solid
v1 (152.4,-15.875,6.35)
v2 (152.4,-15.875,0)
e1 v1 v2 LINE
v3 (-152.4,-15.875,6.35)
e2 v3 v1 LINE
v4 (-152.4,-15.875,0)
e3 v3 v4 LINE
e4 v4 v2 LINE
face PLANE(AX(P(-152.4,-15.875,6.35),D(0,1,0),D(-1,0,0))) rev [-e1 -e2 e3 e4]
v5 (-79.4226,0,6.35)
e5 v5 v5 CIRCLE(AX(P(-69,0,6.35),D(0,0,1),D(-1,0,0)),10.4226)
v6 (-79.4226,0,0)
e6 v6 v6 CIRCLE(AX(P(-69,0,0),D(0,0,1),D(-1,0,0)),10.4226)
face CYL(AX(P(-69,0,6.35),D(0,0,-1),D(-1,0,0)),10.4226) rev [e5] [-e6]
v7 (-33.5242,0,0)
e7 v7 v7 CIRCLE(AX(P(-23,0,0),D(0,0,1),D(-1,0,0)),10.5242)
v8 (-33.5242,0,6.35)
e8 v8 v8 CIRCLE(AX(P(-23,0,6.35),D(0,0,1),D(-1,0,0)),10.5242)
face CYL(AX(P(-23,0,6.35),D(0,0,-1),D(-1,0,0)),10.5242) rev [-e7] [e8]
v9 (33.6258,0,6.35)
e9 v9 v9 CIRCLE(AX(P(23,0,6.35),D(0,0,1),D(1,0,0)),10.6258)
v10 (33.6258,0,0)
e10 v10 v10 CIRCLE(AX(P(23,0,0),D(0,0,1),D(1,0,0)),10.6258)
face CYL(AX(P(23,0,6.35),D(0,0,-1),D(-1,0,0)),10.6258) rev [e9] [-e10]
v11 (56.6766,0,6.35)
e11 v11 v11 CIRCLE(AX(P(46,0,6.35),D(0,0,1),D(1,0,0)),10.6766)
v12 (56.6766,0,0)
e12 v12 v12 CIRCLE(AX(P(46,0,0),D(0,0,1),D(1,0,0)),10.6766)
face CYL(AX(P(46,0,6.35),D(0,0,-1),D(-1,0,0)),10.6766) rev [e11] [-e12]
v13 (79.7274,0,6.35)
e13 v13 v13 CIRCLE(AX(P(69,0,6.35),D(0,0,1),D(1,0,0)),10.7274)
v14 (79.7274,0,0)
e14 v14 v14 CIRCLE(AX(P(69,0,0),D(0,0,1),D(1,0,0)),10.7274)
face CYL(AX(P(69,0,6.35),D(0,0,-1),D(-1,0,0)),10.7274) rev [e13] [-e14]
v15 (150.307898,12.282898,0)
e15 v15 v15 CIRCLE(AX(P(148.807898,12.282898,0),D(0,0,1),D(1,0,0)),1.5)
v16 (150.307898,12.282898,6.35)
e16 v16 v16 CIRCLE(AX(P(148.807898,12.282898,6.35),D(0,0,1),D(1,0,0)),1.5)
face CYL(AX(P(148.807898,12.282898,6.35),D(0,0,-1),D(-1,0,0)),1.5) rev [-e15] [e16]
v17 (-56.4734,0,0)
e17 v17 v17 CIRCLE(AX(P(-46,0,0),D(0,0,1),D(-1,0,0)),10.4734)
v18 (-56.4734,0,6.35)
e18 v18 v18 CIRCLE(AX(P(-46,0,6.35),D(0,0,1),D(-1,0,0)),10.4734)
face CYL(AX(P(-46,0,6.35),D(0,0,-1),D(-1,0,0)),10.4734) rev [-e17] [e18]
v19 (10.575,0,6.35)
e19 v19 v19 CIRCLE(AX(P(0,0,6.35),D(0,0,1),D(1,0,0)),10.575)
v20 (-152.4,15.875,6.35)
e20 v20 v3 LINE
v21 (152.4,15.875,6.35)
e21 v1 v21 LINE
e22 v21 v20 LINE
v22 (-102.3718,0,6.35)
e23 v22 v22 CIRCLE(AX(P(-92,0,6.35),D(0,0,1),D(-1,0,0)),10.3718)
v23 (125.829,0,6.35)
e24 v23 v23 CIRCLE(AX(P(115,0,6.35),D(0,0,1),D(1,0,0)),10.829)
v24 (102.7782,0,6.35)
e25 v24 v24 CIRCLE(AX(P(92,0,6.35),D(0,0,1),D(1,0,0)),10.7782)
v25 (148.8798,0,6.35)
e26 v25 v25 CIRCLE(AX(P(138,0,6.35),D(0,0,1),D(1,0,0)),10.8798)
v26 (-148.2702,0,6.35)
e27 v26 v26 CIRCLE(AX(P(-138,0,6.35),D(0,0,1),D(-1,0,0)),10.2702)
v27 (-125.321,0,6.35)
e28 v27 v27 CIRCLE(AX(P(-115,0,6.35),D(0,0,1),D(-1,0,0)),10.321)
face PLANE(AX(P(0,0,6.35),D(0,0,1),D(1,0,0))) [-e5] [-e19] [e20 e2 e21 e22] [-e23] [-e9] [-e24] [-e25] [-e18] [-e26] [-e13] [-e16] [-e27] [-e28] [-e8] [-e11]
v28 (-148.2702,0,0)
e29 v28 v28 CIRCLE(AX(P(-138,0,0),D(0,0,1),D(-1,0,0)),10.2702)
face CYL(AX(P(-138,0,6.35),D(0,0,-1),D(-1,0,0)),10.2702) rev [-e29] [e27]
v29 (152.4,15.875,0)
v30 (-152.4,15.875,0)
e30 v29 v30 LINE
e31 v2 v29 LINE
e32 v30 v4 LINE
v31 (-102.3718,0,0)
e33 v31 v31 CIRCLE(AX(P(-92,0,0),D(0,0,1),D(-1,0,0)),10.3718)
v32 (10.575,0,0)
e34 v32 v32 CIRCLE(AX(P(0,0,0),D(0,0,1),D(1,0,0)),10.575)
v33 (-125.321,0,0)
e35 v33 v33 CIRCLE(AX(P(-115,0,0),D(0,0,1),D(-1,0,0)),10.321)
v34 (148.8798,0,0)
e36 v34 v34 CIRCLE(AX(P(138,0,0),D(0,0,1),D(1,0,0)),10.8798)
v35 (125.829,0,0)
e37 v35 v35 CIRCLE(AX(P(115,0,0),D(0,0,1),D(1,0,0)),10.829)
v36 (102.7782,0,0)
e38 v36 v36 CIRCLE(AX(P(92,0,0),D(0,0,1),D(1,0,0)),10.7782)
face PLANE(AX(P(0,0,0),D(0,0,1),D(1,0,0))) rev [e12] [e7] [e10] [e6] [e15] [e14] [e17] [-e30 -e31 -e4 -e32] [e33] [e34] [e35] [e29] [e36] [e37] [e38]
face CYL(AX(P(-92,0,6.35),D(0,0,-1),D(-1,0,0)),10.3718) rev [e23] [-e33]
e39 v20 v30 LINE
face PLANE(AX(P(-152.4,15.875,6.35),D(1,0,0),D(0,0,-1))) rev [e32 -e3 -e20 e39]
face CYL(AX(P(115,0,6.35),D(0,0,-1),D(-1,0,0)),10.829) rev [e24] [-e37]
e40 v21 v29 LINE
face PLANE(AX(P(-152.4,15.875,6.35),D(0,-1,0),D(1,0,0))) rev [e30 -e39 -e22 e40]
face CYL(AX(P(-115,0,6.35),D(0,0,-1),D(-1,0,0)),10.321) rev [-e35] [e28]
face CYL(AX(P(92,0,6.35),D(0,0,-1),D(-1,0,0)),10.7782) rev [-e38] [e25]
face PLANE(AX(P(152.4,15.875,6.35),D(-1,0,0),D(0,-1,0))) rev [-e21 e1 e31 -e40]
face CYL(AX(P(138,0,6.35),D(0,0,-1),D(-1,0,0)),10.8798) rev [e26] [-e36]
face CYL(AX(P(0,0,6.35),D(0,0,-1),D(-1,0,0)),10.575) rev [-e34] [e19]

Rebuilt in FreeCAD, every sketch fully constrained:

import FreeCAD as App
import Part
import Sketcher
Q = App.Units.Quantity


def add_polygon(sketch, points):
    """Adds a closed chain of lines whose ends are joined by coincident constraints."""
    first, n = sketch.GeometryCount, len(points)
    for a, b in zip(points, points[1:] + points[:1]):
        sketch.addGeometry(Part.LineSegment(App.Vector(*a, 0), App.Vector(*b, 0)), False)
    for i in range(n):
        sketch.addConstraint(Sketcher.Constraint("Coincident", first + i, 2, first + (i + 1) % n, 1))

doc = App.newDocument("Part")
body = doc.addObject("PartDesign::Body", "Body")

# Sketch on XY plane
sketch1 = body.newObject("Sketcher::SketchObject", "Sketch")
sketch1.AttachmentSupport = (doc.getObject("XY_Plane"), [""])
sketch1.MapMode = "FlatFace"
add_polygon(sketch1, [(-152.4, 15.9), (-152.4, -15.9), (152.4, -15.9), (152.4, 15.9)])  # lines 0-3
sketch1.addGeometry(Part.Circle(App.Vector(-138, 0, 0), App.Vector(0, 0, 1), 10.3), False)  # 4
sketch1.addGeometry(Part.Circle(App.Vector(-115, 0, 0), App.Vector(0, 0, 1), 10.3), False)  # 5
sketch1.addGeometry(Part.Circle(App.Vector(-92, 0, 0), App.Vector(0, 0, 1), 10.4), False)  # 6
sketch1.addGeometry(Part.Circle(App.Vector(-69, 0, 0), App.Vector(0, 0, 1), 10.4), False)  # 7
sketch1.addGeometry(Part.Circle(App.Vector(-46, 0, 0), App.Vector(0, 0, 1), 10.5), False)  # 8
sketch1.addGeometry(Part.Circle(App.Vector(-23, 0, 0), App.Vector(0, 0, 1), 10.5), False)  # 9
sketch1.addGeometry(Part.Circle(App.Vector(0, 0, 0), App.Vector(0, 0, 1), 10.6), False)  # 10
sketch1.addGeometry(Part.Circle(App.Vector(23, 0, 0), App.Vector(0, 0, 1), 10.6), False)  # 11
sketch1.addGeometry(Part.Circle(App.Vector(46, 0, 0), App.Vector(0, 0, 1), 10.7), False)  # 12
sketch1.addGeometry(Part.Circle(App.Vector(69, 0, 0), App.Vector(0, 0, 1), 10.7), False)  # 13
sketch1.addGeometry(Part.Circle(App.Vector(92, 0, 0), App.Vector(0, 0, 1), 10.8), False)  # 14
sketch1.addGeometry(Part.Circle(App.Vector(115, 0, 0), App.Vector(0, 0, 1), 10.8), False)  # 15
sketch1.addGeometry(Part.Circle(App.Vector(138, 0, 0), App.Vector(0, 0, 1), 10.9), False)  # 16
sketch1.addGeometry(Part.Circle(App.Vector(148.8, 12.3, 0), App.Vector(0, 0, 1), 1.5), False)  # 17
sketch1.addConstraint([
    Sketcher.Constraint("Vertical", 0),
    Sketcher.Constraint("Horizontal", 1),
    Sketcher.Constraint("Vertical", 2),
    Sketcher.Constraint("Horizontal", 3),
    Sketcher.Constraint("Coincident", 10, 3, -1, 1),
    Sketcher.Constraint("Symmetric", 9, 3, 11, 3, -1, 1),
    Sketcher.Constraint("Symmetric", 8, 3, 12, 3, -1, 1),
    Sketcher.Constraint("Symmetric", 7, 3, 13, 3, -1, 1),
    Sketcher.Constraint("Symmetric", 6, 3, 14, 3, -1, 1),
    Sketcher.Constraint("Symmetric", 5, 3, 15, 3, -1, 1),
    Sketcher.Constraint("Symmetric", 4, 3, 16, 3, -1, 1),
    Sketcher.Constraint("Symmetric", 0, 2, 2, 2, -1, 1),
    Sketcher.Constraint("PointOnObject", 4, 3, -1),
    Sketcher.Constraint("PointOnObject", 5, 3, -1),
    Sketcher.Constraint("PointOnObject", 6, 3, -1),
    Sketcher.Constraint("PointOnObject", 7, 3, -1),
    Sketcher.Constraint("PointOnObject", 8, 3, -1),
    Sketcher.Constraint("PointOnObject", 9, 3, -1),
    Sketcher.Constraint("DistanceX", 1, 1, 1, 2, Q("12 in")),
    Sketcher.Constraint("DistanceY", 0, 2, 0, 1, Q("1.25 in")),
    Sketcher.Constraint("Diameter", 4, 20.5404),
    Sketcher.Constraint("Diameter", 5, 20.642),
    Sketcher.Constraint("Diameter", 6, 20.7436),
    Sketcher.Constraint("Diameter", 7, 20.8452),
    Sketcher.Constraint("Diameter", 8, 20.9468),
    Sketcher.Constraint("Diameter", 9, 21.0484),
    Sketcher.Constraint("Diameter", 10, 21.15),
    Sketcher.Constraint("Diameter", 11, 21.2516),
    Sketcher.Constraint("Diameter", 12, 21.3532),
    Sketcher.Constraint("Diameter", 13, 21.4548),
    Sketcher.Constraint("Diameter", 14, 21.5564),
    Sketcher.Constraint("Diameter", 15, 21.658),
    Sketcher.Constraint("Diameter", 16, 21.7596),
    Sketcher.Constraint("Diameter", 17, 3.0),
    Sketcher.Constraint("DistanceX", 4, 3, -1, 1, 138.0),
    Sketcher.Constraint("DistanceX", 5, 3, -1, 1, 115.0),
    Sketcher.Constraint("DistanceX", 6, 3, -1, 1, 92.0),
    Sketcher.Constraint("DistanceX", 7, 3, -1, 1, 69.0),
    Sketcher.Constraint("DistanceX", 8, 3, -1, 1, 46.0),
    Sketcher.Constraint("DistanceX", 9, 3, -1, 1, 23.0),
    Sketcher.Constraint("DistanceX", -1, 1, 17, 3, 148.807898),
    Sketcher.Constraint("DistanceY", -1, 1, 17, 3, 12.282898),
])
pad1 = body.newObject("PartDesign::Pad", "Pad")
pad1.Profile = sketch1
pad1.Length = Q("0.25 in")

doc.recompute()
